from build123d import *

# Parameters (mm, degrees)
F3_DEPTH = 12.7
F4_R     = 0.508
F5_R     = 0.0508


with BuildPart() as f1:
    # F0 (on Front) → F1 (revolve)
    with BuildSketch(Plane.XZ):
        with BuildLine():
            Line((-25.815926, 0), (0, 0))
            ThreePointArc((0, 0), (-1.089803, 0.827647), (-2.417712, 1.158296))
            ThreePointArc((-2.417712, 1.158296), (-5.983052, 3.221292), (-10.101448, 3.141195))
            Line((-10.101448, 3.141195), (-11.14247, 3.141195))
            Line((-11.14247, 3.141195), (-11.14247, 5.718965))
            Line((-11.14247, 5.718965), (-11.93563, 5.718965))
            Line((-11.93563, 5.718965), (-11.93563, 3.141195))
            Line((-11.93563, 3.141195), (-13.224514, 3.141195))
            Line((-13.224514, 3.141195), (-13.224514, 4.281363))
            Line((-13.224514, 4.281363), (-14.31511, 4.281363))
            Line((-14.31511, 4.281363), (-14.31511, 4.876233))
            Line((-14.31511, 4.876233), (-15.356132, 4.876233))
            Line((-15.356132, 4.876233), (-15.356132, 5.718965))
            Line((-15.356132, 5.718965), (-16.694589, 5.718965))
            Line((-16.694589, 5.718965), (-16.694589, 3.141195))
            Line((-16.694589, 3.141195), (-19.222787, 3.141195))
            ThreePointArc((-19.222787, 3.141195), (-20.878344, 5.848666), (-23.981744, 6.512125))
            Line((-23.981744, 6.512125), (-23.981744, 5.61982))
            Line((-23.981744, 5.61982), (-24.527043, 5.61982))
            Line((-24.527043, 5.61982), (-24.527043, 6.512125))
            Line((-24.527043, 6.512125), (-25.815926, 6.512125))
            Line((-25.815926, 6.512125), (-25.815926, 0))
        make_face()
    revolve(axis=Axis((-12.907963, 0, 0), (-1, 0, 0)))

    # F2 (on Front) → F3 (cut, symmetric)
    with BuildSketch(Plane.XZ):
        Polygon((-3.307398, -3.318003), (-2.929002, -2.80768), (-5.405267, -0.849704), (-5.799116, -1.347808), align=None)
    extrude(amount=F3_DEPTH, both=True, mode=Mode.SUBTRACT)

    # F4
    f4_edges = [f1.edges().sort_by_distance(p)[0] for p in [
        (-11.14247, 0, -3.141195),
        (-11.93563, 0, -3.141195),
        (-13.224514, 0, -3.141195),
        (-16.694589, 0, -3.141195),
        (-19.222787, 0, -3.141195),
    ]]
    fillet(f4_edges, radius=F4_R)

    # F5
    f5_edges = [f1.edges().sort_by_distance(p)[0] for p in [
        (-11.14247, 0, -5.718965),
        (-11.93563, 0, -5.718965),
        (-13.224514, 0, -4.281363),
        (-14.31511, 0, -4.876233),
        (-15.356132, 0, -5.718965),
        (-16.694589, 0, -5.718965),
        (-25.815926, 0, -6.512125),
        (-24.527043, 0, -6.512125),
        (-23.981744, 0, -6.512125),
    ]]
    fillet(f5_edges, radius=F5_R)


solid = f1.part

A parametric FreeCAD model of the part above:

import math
import FreeCAD as App
import Part
import Sketcher

V = App.Vector
Q = App.Units.Quantity


def edges_at(feature, points):
    """Names of the edges that pass closest to the given points."""
    edges = feature.Shape.Edges
    near = lambda p: min(range(len(edges)), key=lambda i: edges[i].distToShape(Part.Vertex(*p))[0])
    return sorted({f"Edge{near(p) + 1}" for p in points})


def add_polygon(sketch, points):
    """Adds a closed chain of lines whose ends are joined by coincident constraints."""
    first, n = sketch.GeometryCount, len(points)
    for a, b in zip(points, points[1:] + points[:1]):
        sketch.addGeometry(Part.LineSegment(App.Vector(*a, 0), App.Vector(*b, 0)), False)
    for i in range(n):
        sketch.addConstraint(Sketcher.Constraint("Coincident", first + i, 2, first + (i + 1) % n, 1))

doc = App.newDocument("Part")
body = doc.addObject("PartDesign::Body", "Body")

# Sketch on XZ plane
sketch1 = body.newObject("Sketcher::SketchObject", "Sketch")
sketch1.AttachmentSupport = (doc.getObject("XZ_Plane"), [""])
sketch1.MapMode = "FlatFace"
sketch1.addGeometry(Part.LineSegment(V(-25.8, 0, 0), V(0, 0, 0)), False)
sketch1.addGeometry(Part.ArcOfCircle(Part.Circle(V(-2.6, -2.2, 0), V(0, 0, 1), 3.4), math.radians(41), math.radians(88)), False)
sketch1.addGeometry(Part.ArcOfCircle(Part.Circle(V(-7.9, -4.2, 0), V(0, 0, 1), 7.7), math.radians(44), math.radians(107)), False)
sketch1.addGeometry(Part.LineSegment(V(-10.1, 3.1, 0), V(-11.1, 3.1, 0)), False)
sketch1.addGeometry(Part.LineSegment(V(-11.1, 3.1, 0), V(-11.1, 5.7, 0)), False)
sketch1.addGeometry(Part.LineSegment(V(-11.1, 5.7, 0), V(-11.9, 5.7, 0)), False)
sketch1.addGeometry(Part.LineSegment(V(-11.9, 5.7, 0), V(-11.9, 3.1, 0)), False)
sketch1.addGeometry(Part.LineSegment(V(-11.9, 3.1, 0), V(-13.2, 3.1, 0)), False)
sketch1.addGeometry(Part.LineSegment(V(-13.2, 3.1, 0), V(-13.2, 4.3, 0)), False)
sketch1.addGeometry(Part.LineSegment(V(-13.2, 4.3, 0), V(-14.3, 4.3, 0)), False)
sketch1.addGeometry(Part.LineSegment(V(-14.3, 4.3, 0), V(-14.3, 4.9, 0)), False)
sketch1.addGeometry(Part.LineSegment(V(-14.3, 4.9, 0), V(-15.4, 4.9, 0)), False)
sketch1.addGeometry(Part.LineSegment(V(-15.4, 4.9, 0), V(-15.4, 5.7, 0)), False)
sketch1.addGeometry(Part.LineSegment(V(-15.4, 5.7, 0), V(-16.7, 5.7, 0)), False)
sketch1.addGeometry(Part.LineSegment(V(-16.7, 5.7, 0), V(-16.7, 3.1, 0)), False)
sketch1.addGeometry(Part.LineSegment(V(-16.7, 3.1, 0), V(-19.2, 3.1, 0)), False)
sketch1.addGeometry(Part.ArcOfCircle(Part.Circle(V(-23.2, 2.6, 0), V(0, 0, 1), 4), math.radians(8), math.radians(101)), False)
sketch1.addGeometry(Part.LineSegment(V(-24, 6.5, 0), V(-24, 5.6, 0)), False)
sketch1.addGeometry(Part.LineSegment(V(-24, 5.6, 0), V(-24.5, 5.6, 0)), False)
sketch1.addGeometry(Part.LineSegment(V(-24.5, 5.6, 0), V(-24.5, 6.5, 0)), False)
sketch1.addGeometry(Part.LineSegment(V(-24.5, 6.5, 0), V(-25.8, 6.5, 0)), False)
sketch1.addGeometry(Part.LineSegment(V(-25.8, 6.5, 0), V(-25.8, 0, 0)), False)
sketch1.addConstraint(Sketcher.Constraint("Coincident", 0, 2, 1, 1))
sketch1.addConstraint(Sketcher.Constraint("Coincident", 1, 2, 2, 1))
sketch1.addConstraint(Sketcher.Constraint("Coincident", 2, 2, 3, 1))
sketch1.addConstraint(Sketcher.Constraint("Coincident", 3, 2, 4, 1))
sketch1.addConstraint(Sketcher.Constraint("Coincident", 4, 2, 5, 1))
sketch1.addConstraint(Sketcher.Constraint("Coincident", 5, 2, 6, 1))
sketch1.addConstraint(Sketcher.Constraint("Coincident", 6, 2, 7, 1))
sketch1.addConstraint(Sketcher.Constraint("Coincident", 7, 2, 8, 1))
sketch1.addConstraint(Sketcher.Constraint("Coincident", 8, 2, 9, 1))
sketch1.addConstraint(Sketcher.Constraint("Coincident", 9, 2, 10, 1))
sketch1.addConstraint(Sketcher.Constraint("Coincident", 10, 2, 11, 1))
sketch1.addConstraint(Sketcher.Constraint("Coincident", 11, 2, 12, 1))
sketch1.addConstraint(Sketcher.Constraint("Coincident", 12, 2, 13, 1))
sketch1.addConstraint(Sketcher.Constraint("Coincident", 13, 2, 14, 1))
sketch1.addConstraint(Sketcher.Constraint("Coincident", 14, 2, 15, 1))
sketch1.addConstraint(Sketcher.Constraint("Coincident", 15, 2, 16, 1))
sketch1.addConstraint(Sketcher.Constraint("Coincident", 16, 2, 17, 1))
sketch1.addConstraint(Sketcher.Constraint("Coincident", 17, 2, 18, 1))
sketch1.addConstraint(Sketcher.Constraint("Coincident", 18, 2, 19, 1))
sketch1.addConstraint(Sketcher.Constraint("Coincident", 19, 2, 20, 1))
sketch1.addConstraint(Sketcher.Constraint("Coincident", 20, 2, 21, 1))
sketch1.addConstraint(Sketcher.Constraint("Coincident", 21, 2, 0, 1))
sketch1.addConstraint(Sketcher.Constraint("Horizontal", 0))
sketch1.addConstraint(Sketcher.Constraint("Horizontal", 3))
sketch1.addConstraint(Sketcher.Constraint("Vertical", 4))
sketch1.addConstraint(Sketcher.Constraint("Horizontal", 5))
sketch1.addConstraint(Sketcher.Constraint("Vertical", 6))
sketch1.addConstraint(Sketcher.Constraint("Horizontal", 7))
sketch1.addConstraint(Sketcher.Constraint("Vertical", 8))
sketch1.addConstraint(Sketcher.Constraint("Horizontal", 9))
sketch1.addConstraint(Sketcher.Constraint("Vertical", 10))
sketch1.addConstraint(Sketcher.Constraint("Horizontal", 11))
sketch1.addConstraint(Sketcher.Constraint("Vertical", 12))
sketch1.addConstraint(Sketcher.Constraint("Horizontal", 13))
sketch1.addConstraint(Sketcher.Constraint("Vertical", 14))
sketch1.addConstraint(Sketcher.Constraint("Horizontal", 15))
sketch1.addConstraint(Sketcher.Constraint("Vertical", 17))
sketch1.addConstraint(Sketcher.Constraint("Horizontal", 18))
sketch1.addConstraint(Sketcher.Constraint("Vertical", 19))
sketch1.addConstraint(Sketcher.Constraint("Horizontal", 20))
sketch1.addConstraint(Sketcher.Constraint("Vertical", 21))
sketch1.addConstraint(Sketcher.Constraint("Coincident", 0, 2, -1, 1))
sketch1.addConstraint(Sketcher.Constraint("Horizontal", 3, 2, 6, 2))
sketch1.addConstraint(Sketcher.Constraint("Horizontal", 5, 2, 12, 2))
sketch1.addConstraint(Sketcher.Constraint("Horizontal", 7, 2, 14, 2))
sketch1.addConstraint(Sketcher.Constraint("Horizontal", 16, 2, 19, 2))
sketch1.addConstraint(Sketcher.Constraint("Equal", 3, 11))
sketch1.addConstraint(Sketcher.Constraint("Equal", 7, 20))
sketch1.addConstraint(Sketcher.Constraint("Radius", 16, 4.02072))
sketch1.addConstraint(Sketcher.Constraint("DistanceX", 18, 2, 18, 1, 0.545299))
sketch1.addConstraint(Sketcher.Constraint("Radius", 1, 3.398114))
sketch1.addConstraint(Sketcher.Constraint("Radius", 2, 7.666184))
sketch1.addConstraint(Sketcher.Constraint("DistanceX", 3, 2, 3, 1, 1.041022))
sketch1.addConstraint(Sketcher.Constraint("DistanceX", 5, 2, 5, 1, 0.79316))
sketch1.addConstraint(Sketcher.Constraint("DistanceY", 4, 1, 4, 2, 2.57777))
sketch1.addConstraint(Sketcher.Constraint("DistanceY", 10, 1, 10, 2, 0.59487))
sketch1.addConstraint(Sketcher.Constraint("DistanceY", 12, 1, 12, 2, 0.842732))
sketch1.addConstraint(Sketcher.Constraint("DistanceX", 1, 3, -1, 1, 2.558))
sketch1.addConstraint(Sketcher.Constraint("DistanceY", 2, 3, -1, 1, 4.2017))
sketch1.addConstraint(Sketcher.Constraint("DistanceY", 1, 2, 2, 2, 1.982899))
sketch1.addConstraint(Sketcher.Constraint("DistanceX", 0, 1, 0, 2, 25.815926))
sketch1.addConstraint(Sketcher.Constraint("DistanceX", 7, 2, 7, 1, 1.288884))
sketch1.addConstraint(Sketcher.Constraint("DistanceX", 9, 2, 9, 1, 1.090596))
sketch1.addConstraint(Sketcher.Constraint("DistanceX", 13, 2, 13, 1, 1.338457))
sketch1.addConstraint(Sketcher.Constraint("DistanceX", 15, 2, 15, 1, 2.528198))
sketch1.addConstraint(Sketcher.Constraint("DistanceY", 17, 2, 17, 1, 0.892305))
sketch1.addConstraint(Sketcher.Constraint("DistanceY", 21, 2, 21, 1, 6.512125))
sketch1.addConstraint(Sketcher.Constraint("DistanceX", 16, 3, -1, 1, 23.202391))
revolution = body.newObject("PartDesign::Revolution", "Revolution")
revolution.Profile = sketch1
revolution.ReferenceAxis = (sketch1, ["H_Axis"])
revolution.Angle = 360

# Sketch on XZ plane
sketch2 = body.newObject("Sketcher::SketchObject", "Sketch001")
sketch2.AttachmentSupport = (doc.getObject("XZ_Plane"), [""])
sketch2.MapMode = "FlatFace"
add_polygon(sketch2, [(-3.307398, -3.318003), (-2.929002, -2.80768), (-5.405267, -0.849704), (-5.799116, -1.347808)])  # lines 0-3
sketch2.addConstraint(Sketcher.Constraint("Perpendicular", 1, 2))
sketch2.addConstraint(Sketcher.Constraint("Perpendicular", 2, 3))
sketch2.addConstraint(Sketcher.Constraint("Distance", 2, Q("0.025 in")))
sketch2.addConstraint(Sketcher.Constraint("DistanceX", 3, 2, -1, 1, 3.307398))
sketch2.addConstraint(Sketcher.Constraint("DistanceY", 3, 2, 1, 2, 2.468299))
sketch2.addConstraint(Sketcher.Constraint("DistanceY", 0, 2, -1, 1, 2.80768))
sketch2.addConstraint(Sketcher.Constraint("DistanceX", 2, 2, 1, 2, 0.393849))
sketch2.addConstraint(Sketcher.Constraint("Distance", 0, 0.635306))
pocket1 = body.newObject("PartDesign::Pocket", "Pocket")
pocket1.Profile = sketch2
pocket1.Length = Q("1 in")
pocket1.Midplane = True
doc.recompute()

fillet = body.newObject("PartDesign::Fillet", "Fillet")
fillet.Base = (pocket1, edges_at(pocket1, [
    (-11.142, 0, -3.141),
    (-11.936, 0, -3.141),
    (-13.225, 0, -3.141),
    (-16.695, 0, -3.141),
    (-19.223, 0, -3.141),
]))
fillet.Radius = Q("0.02 in")
doc.recompute()

fillet2 = body.newObject("PartDesign::Fillet", "Fillet001")
fillet2.Base = (fillet, edges_at(fillet, [
    (-11.142, 0, -5.719),
    (-11.936, 0, -5.719),
    (-13.225, 0, -4.281),
    (-14.315, 0, -4.876),
    (-15.356, 0, -5.719),
    (-16.695, 0, -5.719),
    (-25.816, 0, -6.512),
    (-24.527, 0, -6.512),
    (-23.982, 0, -6.512),
]))
fillet2.Radius = Q("0.002 in")

doc.recompute()
